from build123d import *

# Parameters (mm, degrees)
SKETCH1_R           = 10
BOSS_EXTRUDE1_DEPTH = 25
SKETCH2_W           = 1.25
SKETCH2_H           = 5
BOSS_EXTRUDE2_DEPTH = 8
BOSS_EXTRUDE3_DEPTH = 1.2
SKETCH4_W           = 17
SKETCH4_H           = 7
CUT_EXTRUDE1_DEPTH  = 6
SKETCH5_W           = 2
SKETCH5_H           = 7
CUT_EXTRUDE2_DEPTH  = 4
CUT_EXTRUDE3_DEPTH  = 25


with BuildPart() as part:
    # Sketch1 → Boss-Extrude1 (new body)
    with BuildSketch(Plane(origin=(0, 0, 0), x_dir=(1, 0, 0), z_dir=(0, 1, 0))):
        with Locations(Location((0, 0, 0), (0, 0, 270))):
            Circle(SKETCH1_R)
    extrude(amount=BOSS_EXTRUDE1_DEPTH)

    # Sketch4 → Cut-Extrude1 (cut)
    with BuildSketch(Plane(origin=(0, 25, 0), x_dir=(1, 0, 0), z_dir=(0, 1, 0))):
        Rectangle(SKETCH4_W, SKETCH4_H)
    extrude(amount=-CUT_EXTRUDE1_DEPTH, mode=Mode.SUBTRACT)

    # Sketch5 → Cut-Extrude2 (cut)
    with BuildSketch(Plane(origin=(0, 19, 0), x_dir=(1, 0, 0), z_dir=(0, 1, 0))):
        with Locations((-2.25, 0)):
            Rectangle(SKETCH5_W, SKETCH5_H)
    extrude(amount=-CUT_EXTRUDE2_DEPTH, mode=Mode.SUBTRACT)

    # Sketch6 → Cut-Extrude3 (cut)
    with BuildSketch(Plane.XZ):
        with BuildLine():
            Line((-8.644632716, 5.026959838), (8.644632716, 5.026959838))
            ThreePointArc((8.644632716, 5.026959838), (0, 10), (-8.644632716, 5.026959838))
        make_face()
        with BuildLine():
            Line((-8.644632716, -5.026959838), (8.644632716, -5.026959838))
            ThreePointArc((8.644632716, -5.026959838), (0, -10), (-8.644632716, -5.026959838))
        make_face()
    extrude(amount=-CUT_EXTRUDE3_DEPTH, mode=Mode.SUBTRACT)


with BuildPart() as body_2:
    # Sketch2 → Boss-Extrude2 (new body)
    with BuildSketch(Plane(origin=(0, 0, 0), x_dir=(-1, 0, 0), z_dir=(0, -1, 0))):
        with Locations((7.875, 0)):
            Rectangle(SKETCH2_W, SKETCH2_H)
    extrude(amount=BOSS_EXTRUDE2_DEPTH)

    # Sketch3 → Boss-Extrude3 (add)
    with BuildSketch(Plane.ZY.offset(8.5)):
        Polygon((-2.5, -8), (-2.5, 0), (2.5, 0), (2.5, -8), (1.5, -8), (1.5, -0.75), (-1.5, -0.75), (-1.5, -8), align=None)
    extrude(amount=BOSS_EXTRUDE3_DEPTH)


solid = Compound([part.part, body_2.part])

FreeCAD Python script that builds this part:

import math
import FreeCAD as App
import Part
import Sketcher

V = App.Vector
Q = App.Units.Quantity

doc = App.newDocument("Part")
params = doc.addObject("Spreadsheet::Sheet", "Params")
for row, (alias, value) in enumerate([
    ("sketch1_diameter", "20 mm"),
    ("pad1_length", "25 mm"),
    ("sketch2_width", "17 mm"),
    ("sketch2_height", "7 mm"),
    ("pocket1_length", "6 mm"),
    ("sketch3_width", "2 mm"),
    ("sketch3_height", "7 mm"),
    ("pocket2_length", "4 mm"),
    ("sketch4_radius", "10 mm"),
    ("pocket3_length", "25 mm"),
    ("sketch5_height", "5 mm"),
    ("sketch5_width", "1.25 mm"),
    ("pad2_length", "8 mm"),
    ("sketch6_width", "8 mm"),
    ("sketch6_height", "1 mm"),
    ("sketch6_height2", "3 mm"),
    ("sketch6_width2", "7.25 mm"),
    ("pad3_length", "1.2 mm"),
], start=1):
    params.set(f"A{row}", alias)
    params.set(f"B{row}", "=" + value)
    params.setAlias(f"B{row}", alias)

body = doc.addObject("PartDesign::Body", "Body")

sketch1 = doc.addObject("Sketcher::SketchObject", "Sketch")
body.addObject(sketch1)
sketch1.AttachmentSupport = (doc.XZ_Plane, [""])
sketch1.MapMode = "FlatFace"
sketch1.addGeometry(Part.Circle(V(0, 0, 0), V(0, 0, 1), 10), False)
sketch1.addConstraint([
    Sketcher.Constraint("Coincident", 0, 3, -1, 1),
    Sketcher.Constraint("Diameter", 0, Q("20 mm")),
])
sketch1.setExpression("Constraints[1]", "Params.sketch1_diameter")
pad1 = doc.addObject("PartDesign::Pad", "Pad")
body.addObject(pad1)
pad1.Profile = sketch1
pad1.setExpression("Length", "Params.pad1_length")
pad1.Reversed = True

sketch2 = doc.addObject("Sketcher::SketchObject", "Sketch001")
body.addObject(sketch2)
sketch2.AttachmentSupport = (doc.XZ_Plane, [""])
sketch2.MapMode = "FlatFace"
sketch2.AttachmentOffset = App.Placement(V(0, 0, -25), App.Rotation())
sketch2.addGeometry([
    Part.LineSegment(V(-8, -4, 0), V(-8, 4, 0)),
    Part.LineSegment(V(-8, 4, 0), V(8, 4, 0)),
    Part.LineSegment(V(8, 4, 0), V(8, -4, 0)),
    Part.LineSegment(V(8, -4, 0), V(-8, -4, 0)),
], False)
sketch2.addConstraint([
    Sketcher.Constraint("Coincident", 0, 2, 1, 1),
    Sketcher.Constraint("Coincident", 1, 2, 2, 1),
    Sketcher.Constraint("Coincident", 2, 2, 3, 1),
    Sketcher.Constraint("Coincident", 3, 2, 0, 1),
    Sketcher.Constraint("Vertical", 0),
    Sketcher.Constraint("Horizontal", 1),
    Sketcher.Constraint("Vertical", 2),
    Sketcher.Constraint("Horizontal", 3),
    Sketcher.Constraint("Symmetric", 0, 2, 2, 2, -1, 1),
    Sketcher.Constraint("DistanceX", 1, 1, 1, 2, Q("17 mm")),
    Sketcher.Constraint("DistanceY", 0, 1, 0, 2, Q("7 mm")),
])
sketch2.setExpression("Constraints[9]", "Params.sketch2_width")
sketch2.setExpression("Constraints[10]", "Params.sketch2_height")
pocket1 = doc.addObject("PartDesign::Pocket", "Pocket")
body.addObject(pocket1)
pocket1.Profile = sketch2
pocket1.setExpression("Length", "Params.pocket1_length")
pocket1.Reversed = True

sketch3 = doc.addObject("Sketcher::SketchObject", "Sketch002")
body.addObject(sketch3)
sketch3.AttachmentSupport = (doc.XZ_Plane, [""])
sketch3.MapMode = "FlatFace"
sketch3.AttachmentOffset = App.Placement(V(0, 0, -19), App.Rotation())
sketch3.addGeometry([
    Part.LineSegment(V(-3.2, -3.5, 0), V(-3.2, 3.5, 0)),
    Part.LineSegment(V(-3.2, 3.5, 0), V(-1.2, 3.5, 0)),
    Part.LineSegment(V(-1.2, 3.5, 0), V(-1.2, -3.5, 0)),
    Part.LineSegment(V(-1.2, -3.5, 0), V(-3.2, -3.5, 0)),
], False)
sketch3.addConstraint([
    Sketcher.Constraint("Coincident", 0, 2, 1, 1),
    Sketcher.Constraint("Coincident", 1, 2, 2, 1),
    Sketcher.Constraint("Coincident", 2, 2, 3, 1),
    Sketcher.Constraint("Coincident", 3, 2, 0, 1),
    Sketcher.Constraint("Vertical", 0),
    Sketcher.Constraint("Horizontal", 1),
    Sketcher.Constraint("Vertical", 2),
    Sketcher.Constraint("Horizontal", 3),
    Sketcher.Constraint("DistanceX", 1, 1, 1, 2, Q("2 mm")),
    Sketcher.Constraint("DistanceY", 0, 1, 0, 2, Q("7 mm")),
    Sketcher.Constraint("DistanceY", -1, 1, 0, 2, Q("3.5 mm")),
    Sketcher.Constraint("DistanceX", 0, 2, -1, 1, Q("3.25 mm")),
])
sketch3.setExpression("Constraints[8]", "Params.sketch3_width")
sketch3.setExpression("Constraints[9]", "Params.sketch3_height")
pocket2 = doc.addObject("PartDesign::Pocket", "Pocket001")
body.addObject(pocket2)
pocket2.Profile = sketch3
pocket2.setExpression("Length", "Params.pocket2_length")
pocket2.Reversed = True

sketch4 = doc.addObject("Sketcher::SketchObject", "Sketch003")
body.addObject(sketch4)
sketch4.AttachmentSupport = (doc.XZ_Plane, [""])
sketch4.MapMode = "FlatFace"
sketch4.addGeometry([
    Part.LineSegment(V(-9, 5, 0), V(9, 5, 0)),
    Part.ArcOfCircle(Part.Circle(V(0, 0, 0), V(0, 0, 1), 10), math.radians(30), math.radians(150)),
    Part.LineSegment(V(9, -5, 0), V(-9, -5, 0)),
    Part.ArcOfCircle(Part.Circle(V(0, 0, 0), V(0, 0, 1), 10), math.radians(-150), math.radians(-30)),
], False)
sketch4.addConstraint([
    Sketcher.Constraint("Coincident", 0, 1, 1, 2),
    Sketcher.Constraint("Coincident", 1, 1, 0, 2),
    Sketcher.Constraint("Coincident", 2, 1, 3, 2),
    Sketcher.Constraint("Coincident", 3, 1, 2, 2),
    Sketcher.Constraint("Horizontal", 0),
    Sketcher.Constraint("Horizontal", 2),
    Sketcher.Constraint("Coincident", 1, 3, -1, 1),
    Sketcher.Constraint("Coincident", 3, 3, -1, 1),
    Sketcher.Constraint("Equal", 1, 3),
    Sketcher.Constraint("Vertical", 1, 1, 2, 1),
    Sketcher.Constraint("Radius", 1, Q("10 mm")),
    Sketcher.Constraint("DistanceX", 0, 1, 0, 2, Q("17.289265 mm")),
])
sketch4.setExpression("Constraints[10]", "Params.sketch4_radius")
pocket3 = doc.addObject("PartDesign::Pocket", "Pocket002")
body.addObject(pocket3)
pocket3.Profile = sketch4
pocket3.setExpression("Length", "Params.pocket3_length")
body2 = doc.addObject("PartDesign::Body", "Body001")

sketch5 = doc.addObject("Sketcher::SketchObject", "Sketch004")
body2.addObject(sketch5)
sketch5.AttachmentSupport = (doc.getObject("XZ_Plane001"), [""])
sketch5.MapMode = "FlatFace"
sketch5.addGeometry([
    Part.LineSegment(V(-7.2, -2.5, 0), V(-7.2, 2.5, 0)),
    Part.LineSegment(V(-7.2, 2.5, 0), V(-8.5, 2.5, 0)),
    Part.LineSegment(V(-8.5, 2.5, 0), V(-8.5, -2.5, 0)),
    Part.LineSegment(V(-8.5, -2.5, 0), V(-7.2, -2.5, 0)),
], False)
sketch5.addConstraint([
    Sketcher.Constraint("Coincident", 0, 2, 1, 1),
    Sketcher.Constraint("Coincident", 1, 2, 2, 1),
    Sketcher.Constraint("Coincident", 2, 2, 3, 1),
    Sketcher.Constraint("Coincident", 3, 2, 0, 1),
    Sketcher.Constraint("Vertical", 0),
    Sketcher.Constraint("Horizontal", 1),
    Sketcher.Constraint("Vertical", 2),
    Sketcher.Constraint("Horizontal", 3),
    Sketcher.Constraint("DistanceY", 0, 1, 0, 2, Q("5 mm")),
    Sketcher.Constraint("DistanceX", 1, 2, 1, 1, Q("1.25 mm")),
    Sketcher.Constraint("DistanceY", -1, 1, 0, 2, Q("2.5 mm")),
    Sketcher.Constraint("DistanceX", 1, 2, -1, 1, Q("8.5 mm")),
])
sketch5.setExpression("Constraints[8]", "Params.sketch5_height")
sketch5.setExpression("Constraints[9]", "Params.sketch5_width")
pad2 = doc.addObject("PartDesign::Pad", "Pad001")
body2.addObject(pad2)
pad2.Profile = sketch5
pad2.setExpression("Length", "Params.pad2_length")

sketch6 = doc.addObject("Sketcher::SketchObject", "Sketch005")
body2.addObject(sketch6)
sketch6.AttachmentSupport = (doc.getObject("YZ_Plane001"), [""])
sketch6.MapMode = "FlatFace"
sketch6.AttachmentOffset = App.Placement(V(0, 0, -8.5), App.Rotation())
sketch6.addGeometry([
    Part.LineSegment(V(0, -2.5, 0), V(-8, -2.5, 0)),
    Part.LineSegment(V(-8, -2.5, 0), V(-8, -1.5, 0)),
    Part.LineSegment(V(-8, -1.5, 0), V(-0.8, -1.5, 0)),
    Part.LineSegment(V(-0.8, -1.5, 0), V(-0.8, 1.5, 0)),
    Part.LineSegment(V(-0.8, 1.5, 0), V(-8, 1.5, 0)),
    Part.LineSegment(V(-8, 1.5, 0), V(-8, 2.5, 0)),
    Part.LineSegment(V(-8, 2.5, 0), V(0, 2.5, 0)),
    Part.LineSegment(V(0, 2.5, 0), V(0, -2.5, 0)),
], False)
sketch6.addConstraint([
    Sketcher.Constraint("Coincident", 0, 2, 1, 1),
    Sketcher.Constraint("Coincident", 1, 2, 2, 1),
    Sketcher.Constraint("Coincident", 2, 2, 3, 1),
    Sketcher.Constraint("Coincident", 3, 2, 4, 1),
    Sketcher.Constraint("Coincident", 4, 2, 5, 1),
    Sketcher.Constraint("Coincident", 5, 2, 6, 1),
    Sketcher.Constraint("Coincident", 6, 2, 7, 1),
    Sketcher.Constraint("Coincident", 7, 2, 0, 1),
    Sketcher.Constraint("Horizontal", 0),
    Sketcher.Constraint("Vertical", 1),
    Sketcher.Constraint("Horizontal", 2),
    Sketcher.Constraint("Vertical", 3),
    Sketcher.Constraint("Horizontal", 4),
    Sketcher.Constraint("Vertical", 5),
    Sketcher.Constraint("Horizontal", 6),
    Sketcher.Constraint("Vertical", 7),
    Sketcher.Constraint("Symmetric", 6, 2, 7, 2, -1, 1),
    Sketcher.Constraint("Symmetric", 1, 2, 4, 2, -1),
    Sketcher.Constraint("DistanceX", 0, 2, 0, 1, Q("8 mm")),
    Sketcher.Constraint("DistanceY", 1, 1, 1, 2, Q("1 mm")),
    Sketcher.Constraint("DistanceY", 3, 1, 3, 2, Q("3 mm")),
    Sketcher.Constraint("DistanceX", 2, 1, 2, 2, Q("7.25 mm")),
])
sketch6.setExpression("Constraints[18]", "Params.sketch6_width")
sketch6.setExpression("Constraints[19]", "Params.sketch6_height")
sketch6.setExpression("Constraints[20]", "Params.sketch6_height2")
sketch6.setExpression("Constraints[21]", "Params.sketch6_width2")
pad3 = doc.addObject("PartDesign::Pad", "Pad002")
body2.addObject(pad3)
pad3.Profile = sketch6
pad3.setExpression("Length", "Params.pad3_length")
pad3.Reversed = True

doc.recompute()
